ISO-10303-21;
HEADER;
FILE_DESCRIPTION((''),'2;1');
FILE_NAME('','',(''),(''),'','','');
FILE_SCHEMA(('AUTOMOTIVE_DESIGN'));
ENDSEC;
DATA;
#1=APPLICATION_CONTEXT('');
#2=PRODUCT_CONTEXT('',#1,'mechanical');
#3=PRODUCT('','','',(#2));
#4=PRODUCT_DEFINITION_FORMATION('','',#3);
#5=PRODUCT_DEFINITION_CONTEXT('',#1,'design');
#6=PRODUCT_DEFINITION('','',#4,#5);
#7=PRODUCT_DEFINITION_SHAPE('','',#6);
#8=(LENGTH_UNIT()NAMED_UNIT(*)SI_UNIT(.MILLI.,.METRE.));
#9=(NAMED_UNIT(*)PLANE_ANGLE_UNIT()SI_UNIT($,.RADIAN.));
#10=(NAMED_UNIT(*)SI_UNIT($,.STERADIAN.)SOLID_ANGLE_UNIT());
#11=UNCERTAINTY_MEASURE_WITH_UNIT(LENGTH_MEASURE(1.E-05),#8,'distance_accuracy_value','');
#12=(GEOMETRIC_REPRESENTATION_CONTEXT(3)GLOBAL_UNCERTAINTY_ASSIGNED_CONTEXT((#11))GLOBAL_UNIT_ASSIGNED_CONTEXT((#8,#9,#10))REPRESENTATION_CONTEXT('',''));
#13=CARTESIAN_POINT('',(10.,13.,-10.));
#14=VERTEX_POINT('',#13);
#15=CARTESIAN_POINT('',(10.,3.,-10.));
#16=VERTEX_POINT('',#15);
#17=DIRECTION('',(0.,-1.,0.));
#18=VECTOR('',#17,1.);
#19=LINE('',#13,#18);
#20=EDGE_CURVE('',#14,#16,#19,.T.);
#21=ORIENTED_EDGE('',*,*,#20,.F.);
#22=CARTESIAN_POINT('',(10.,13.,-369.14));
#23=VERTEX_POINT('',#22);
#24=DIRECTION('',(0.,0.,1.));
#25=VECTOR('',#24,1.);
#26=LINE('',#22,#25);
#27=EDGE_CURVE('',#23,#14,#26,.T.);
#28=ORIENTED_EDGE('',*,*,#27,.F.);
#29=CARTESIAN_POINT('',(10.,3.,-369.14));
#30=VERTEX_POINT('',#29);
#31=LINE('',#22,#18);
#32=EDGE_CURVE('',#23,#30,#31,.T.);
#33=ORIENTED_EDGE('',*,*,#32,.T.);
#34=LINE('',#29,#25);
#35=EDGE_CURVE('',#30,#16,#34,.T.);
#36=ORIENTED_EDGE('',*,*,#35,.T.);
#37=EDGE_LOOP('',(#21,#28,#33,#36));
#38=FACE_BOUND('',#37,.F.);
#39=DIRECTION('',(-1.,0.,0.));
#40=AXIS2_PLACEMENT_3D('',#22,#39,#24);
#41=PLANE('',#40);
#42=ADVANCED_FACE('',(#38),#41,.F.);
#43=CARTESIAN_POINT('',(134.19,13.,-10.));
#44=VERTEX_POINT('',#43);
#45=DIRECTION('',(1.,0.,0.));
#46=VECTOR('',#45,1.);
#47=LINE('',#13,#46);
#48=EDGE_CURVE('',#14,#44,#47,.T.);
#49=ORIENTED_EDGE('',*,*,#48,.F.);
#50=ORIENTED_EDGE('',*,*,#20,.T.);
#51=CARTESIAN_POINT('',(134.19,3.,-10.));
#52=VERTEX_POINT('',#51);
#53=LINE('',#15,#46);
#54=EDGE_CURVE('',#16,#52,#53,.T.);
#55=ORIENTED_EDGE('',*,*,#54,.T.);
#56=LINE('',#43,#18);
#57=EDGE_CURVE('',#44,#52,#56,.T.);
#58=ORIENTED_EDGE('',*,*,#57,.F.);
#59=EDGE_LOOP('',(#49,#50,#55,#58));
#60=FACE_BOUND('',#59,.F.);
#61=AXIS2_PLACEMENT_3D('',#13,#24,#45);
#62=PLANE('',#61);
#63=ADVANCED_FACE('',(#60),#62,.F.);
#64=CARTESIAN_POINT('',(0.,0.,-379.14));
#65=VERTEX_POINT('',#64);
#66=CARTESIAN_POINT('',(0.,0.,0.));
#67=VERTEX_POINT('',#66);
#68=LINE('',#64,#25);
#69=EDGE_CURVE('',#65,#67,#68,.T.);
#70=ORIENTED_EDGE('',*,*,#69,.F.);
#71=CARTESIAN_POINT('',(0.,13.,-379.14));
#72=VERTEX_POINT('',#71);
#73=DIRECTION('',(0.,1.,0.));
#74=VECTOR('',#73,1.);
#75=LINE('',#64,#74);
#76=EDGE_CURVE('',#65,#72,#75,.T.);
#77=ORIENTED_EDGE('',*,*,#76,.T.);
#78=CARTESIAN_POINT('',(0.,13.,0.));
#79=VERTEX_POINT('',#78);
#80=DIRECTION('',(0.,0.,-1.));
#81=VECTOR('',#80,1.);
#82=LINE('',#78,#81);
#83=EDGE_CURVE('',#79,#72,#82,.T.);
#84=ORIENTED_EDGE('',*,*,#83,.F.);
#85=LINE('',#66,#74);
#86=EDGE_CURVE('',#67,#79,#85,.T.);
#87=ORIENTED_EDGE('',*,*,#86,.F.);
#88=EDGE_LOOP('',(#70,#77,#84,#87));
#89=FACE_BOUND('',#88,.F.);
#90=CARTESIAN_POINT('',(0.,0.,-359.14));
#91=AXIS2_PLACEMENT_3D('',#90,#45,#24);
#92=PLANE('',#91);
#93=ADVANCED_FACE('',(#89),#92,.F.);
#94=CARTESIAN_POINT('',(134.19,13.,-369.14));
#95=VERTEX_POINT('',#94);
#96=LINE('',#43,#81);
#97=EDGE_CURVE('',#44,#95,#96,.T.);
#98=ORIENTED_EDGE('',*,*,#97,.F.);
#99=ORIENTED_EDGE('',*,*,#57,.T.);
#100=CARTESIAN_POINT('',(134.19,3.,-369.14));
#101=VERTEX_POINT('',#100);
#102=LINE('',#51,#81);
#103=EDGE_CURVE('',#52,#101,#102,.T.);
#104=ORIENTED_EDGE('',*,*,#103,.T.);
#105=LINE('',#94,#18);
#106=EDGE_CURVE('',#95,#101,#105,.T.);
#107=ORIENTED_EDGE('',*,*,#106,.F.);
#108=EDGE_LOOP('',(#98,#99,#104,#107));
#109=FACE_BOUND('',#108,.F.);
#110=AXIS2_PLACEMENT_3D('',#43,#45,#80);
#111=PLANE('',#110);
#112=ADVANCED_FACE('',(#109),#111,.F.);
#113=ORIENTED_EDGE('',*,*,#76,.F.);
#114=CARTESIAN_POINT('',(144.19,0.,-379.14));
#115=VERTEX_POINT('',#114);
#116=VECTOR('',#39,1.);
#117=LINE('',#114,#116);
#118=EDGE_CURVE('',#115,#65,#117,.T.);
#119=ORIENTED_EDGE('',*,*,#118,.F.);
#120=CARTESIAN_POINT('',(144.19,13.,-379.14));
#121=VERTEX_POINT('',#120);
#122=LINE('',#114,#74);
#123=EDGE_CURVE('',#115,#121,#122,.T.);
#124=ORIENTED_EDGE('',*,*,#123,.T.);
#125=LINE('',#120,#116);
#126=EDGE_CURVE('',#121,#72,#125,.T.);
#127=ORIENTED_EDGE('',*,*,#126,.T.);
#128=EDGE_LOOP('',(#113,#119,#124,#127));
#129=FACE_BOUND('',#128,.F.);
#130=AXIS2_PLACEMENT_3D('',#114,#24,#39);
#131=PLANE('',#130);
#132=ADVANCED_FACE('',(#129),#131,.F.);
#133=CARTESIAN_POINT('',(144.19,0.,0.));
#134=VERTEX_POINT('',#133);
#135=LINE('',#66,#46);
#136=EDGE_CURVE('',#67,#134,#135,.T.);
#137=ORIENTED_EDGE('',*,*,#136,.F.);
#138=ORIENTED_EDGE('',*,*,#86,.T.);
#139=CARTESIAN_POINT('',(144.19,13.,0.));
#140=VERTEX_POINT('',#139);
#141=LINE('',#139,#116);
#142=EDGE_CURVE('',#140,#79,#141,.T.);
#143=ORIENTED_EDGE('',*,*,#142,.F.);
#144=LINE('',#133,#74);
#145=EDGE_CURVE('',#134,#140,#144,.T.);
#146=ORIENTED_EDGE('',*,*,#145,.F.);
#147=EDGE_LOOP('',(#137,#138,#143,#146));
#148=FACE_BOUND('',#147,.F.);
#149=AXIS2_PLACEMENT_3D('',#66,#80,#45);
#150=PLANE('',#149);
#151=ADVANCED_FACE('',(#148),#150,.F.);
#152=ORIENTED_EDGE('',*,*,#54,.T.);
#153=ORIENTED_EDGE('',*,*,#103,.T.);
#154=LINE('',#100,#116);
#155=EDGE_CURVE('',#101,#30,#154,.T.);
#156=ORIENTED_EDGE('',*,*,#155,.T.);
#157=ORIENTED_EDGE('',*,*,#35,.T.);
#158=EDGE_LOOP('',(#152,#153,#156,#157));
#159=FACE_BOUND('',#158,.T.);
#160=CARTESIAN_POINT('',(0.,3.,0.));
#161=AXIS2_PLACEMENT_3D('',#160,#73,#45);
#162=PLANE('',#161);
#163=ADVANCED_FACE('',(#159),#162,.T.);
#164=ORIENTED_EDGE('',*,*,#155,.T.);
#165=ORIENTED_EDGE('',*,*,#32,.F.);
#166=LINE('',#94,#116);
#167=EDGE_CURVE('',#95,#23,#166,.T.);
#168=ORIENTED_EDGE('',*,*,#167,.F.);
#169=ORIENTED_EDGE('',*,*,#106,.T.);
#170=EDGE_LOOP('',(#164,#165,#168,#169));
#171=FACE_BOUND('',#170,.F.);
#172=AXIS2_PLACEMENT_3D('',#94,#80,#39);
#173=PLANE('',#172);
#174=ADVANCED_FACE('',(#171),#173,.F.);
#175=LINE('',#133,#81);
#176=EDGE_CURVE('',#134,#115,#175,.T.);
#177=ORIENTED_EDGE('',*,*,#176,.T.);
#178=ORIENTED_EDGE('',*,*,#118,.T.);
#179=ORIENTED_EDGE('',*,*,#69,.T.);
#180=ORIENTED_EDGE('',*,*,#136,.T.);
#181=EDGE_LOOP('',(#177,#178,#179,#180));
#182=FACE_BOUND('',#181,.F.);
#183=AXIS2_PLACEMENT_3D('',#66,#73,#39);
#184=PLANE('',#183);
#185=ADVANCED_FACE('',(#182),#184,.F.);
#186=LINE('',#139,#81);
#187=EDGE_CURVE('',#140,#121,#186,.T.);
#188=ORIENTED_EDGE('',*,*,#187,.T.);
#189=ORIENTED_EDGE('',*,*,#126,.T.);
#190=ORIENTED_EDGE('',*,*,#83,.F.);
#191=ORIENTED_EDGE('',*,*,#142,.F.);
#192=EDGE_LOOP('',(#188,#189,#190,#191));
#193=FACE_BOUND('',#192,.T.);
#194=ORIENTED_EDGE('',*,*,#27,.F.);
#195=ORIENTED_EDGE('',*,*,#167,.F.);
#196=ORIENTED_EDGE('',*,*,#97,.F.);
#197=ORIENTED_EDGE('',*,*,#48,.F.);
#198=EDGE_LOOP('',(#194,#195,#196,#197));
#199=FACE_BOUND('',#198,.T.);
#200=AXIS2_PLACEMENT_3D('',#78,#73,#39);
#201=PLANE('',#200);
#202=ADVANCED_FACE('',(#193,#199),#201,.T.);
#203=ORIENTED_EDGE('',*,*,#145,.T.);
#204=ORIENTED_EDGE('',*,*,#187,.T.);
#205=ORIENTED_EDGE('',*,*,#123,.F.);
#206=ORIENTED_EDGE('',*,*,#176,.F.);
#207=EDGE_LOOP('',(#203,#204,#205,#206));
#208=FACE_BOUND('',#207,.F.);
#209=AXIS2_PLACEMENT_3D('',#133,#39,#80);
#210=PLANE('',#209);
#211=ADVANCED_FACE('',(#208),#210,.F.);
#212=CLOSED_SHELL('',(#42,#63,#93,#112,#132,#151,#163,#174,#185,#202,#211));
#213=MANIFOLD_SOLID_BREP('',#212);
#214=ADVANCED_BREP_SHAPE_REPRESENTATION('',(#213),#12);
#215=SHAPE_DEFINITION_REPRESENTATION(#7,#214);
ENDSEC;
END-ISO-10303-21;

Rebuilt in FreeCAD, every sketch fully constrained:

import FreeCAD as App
import Part
import Sketcher

V = App.Vector


def add_polygon(sketch, points):
    """Adds a closed chain of lines whose ends are joined by coincident constraints."""
    first, n = sketch.GeometryCount, len(points)
    for a, b in zip(points, points[1:] + points[:1]):
        sketch.addGeometry(Part.LineSegment(App.Vector(*a, 0), App.Vector(*b, 0)), False)
    for i in range(n):
        sketch.addConstraint(Sketcher.Constraint("Coincident", first + i, 2, first + (i + 1) % n, 1))

doc = App.newDocument("Part")
body = doc.addObject("PartDesign::Body", "Body")

# Sketch on XZ plane
sketch1 = doc.addObject("Sketcher::SketchObject", "Sketch")
body.addObject(sketch1)
sketch1.AttachmentSupport = (doc.XZ_Plane, [""])
sketch1.MapMode = "FlatFace"
add_polygon(sketch1, [(0, 0), (144, 0), (144, -379), (0, -379)])  # lines 0-3
sketch1.addConstraint([
    Sketcher.Constraint("Horizontal", 0),
    Sketcher.Constraint("Vertical", 1),
    Sketcher.Constraint("Horizontal", 2),
    Sketcher.Constraint("Vertical", 3),
    Sketcher.Constraint("Coincident", 3, 2, -1, 1),
    Sketcher.Constraint("DistanceX", 0, 1, 0, 2, 144.19),
    Sketcher.Constraint("DistanceY", 1, 2, 1, 1, 379.14),
])
pad1 = doc.addObject("PartDesign::Pad", "Pad")
body.addObject(pad1)
pad1.Profile = sketch1
pad1.Length = 13
pad1.Reversed = True

# Sketch on XZ plane
sketch2 = doc.addObject("Sketcher::SketchObject", "Sketch001")
body.addObject(sketch2)
sketch2.AttachmentSupport = (doc.XZ_Plane, [""])
sketch2.MapMode = "FlatFace"
sketch2.AttachmentOffset = App.Placement(V(0, 0, -13), App.Rotation())
add_polygon(sketch2, [(10, -369), (10, -10), (134, -10), (134, -369)])  # lines 0-3
sketch2.addConstraint([
    Sketcher.Constraint("Vertical", 0),
    Sketcher.Constraint("Horizontal", 1),
    Sketcher.Constraint("Vertical", 2),
    Sketcher.Constraint("Horizontal", 3),
    Sketcher.Constraint("DistanceX", -1, 1, 0, 2, 10.0),
    Sketcher.Constraint("DistanceY", 0, 2, -1, 1, 10.0),
    Sketcher.Constraint("DistanceX", 1, 1, 1, 2, 124.19),
    Sketcher.Constraint("DistanceY", 0, 1, 0, 2, 359.14),
])
pocket1 = doc.addObject("PartDesign::Pocket", "Pocket")
body.addObject(pocket1)
pocket1.Profile = sketch2
pocket1.Length = 10
pocket1.Reversed = True

doc.recompute()
